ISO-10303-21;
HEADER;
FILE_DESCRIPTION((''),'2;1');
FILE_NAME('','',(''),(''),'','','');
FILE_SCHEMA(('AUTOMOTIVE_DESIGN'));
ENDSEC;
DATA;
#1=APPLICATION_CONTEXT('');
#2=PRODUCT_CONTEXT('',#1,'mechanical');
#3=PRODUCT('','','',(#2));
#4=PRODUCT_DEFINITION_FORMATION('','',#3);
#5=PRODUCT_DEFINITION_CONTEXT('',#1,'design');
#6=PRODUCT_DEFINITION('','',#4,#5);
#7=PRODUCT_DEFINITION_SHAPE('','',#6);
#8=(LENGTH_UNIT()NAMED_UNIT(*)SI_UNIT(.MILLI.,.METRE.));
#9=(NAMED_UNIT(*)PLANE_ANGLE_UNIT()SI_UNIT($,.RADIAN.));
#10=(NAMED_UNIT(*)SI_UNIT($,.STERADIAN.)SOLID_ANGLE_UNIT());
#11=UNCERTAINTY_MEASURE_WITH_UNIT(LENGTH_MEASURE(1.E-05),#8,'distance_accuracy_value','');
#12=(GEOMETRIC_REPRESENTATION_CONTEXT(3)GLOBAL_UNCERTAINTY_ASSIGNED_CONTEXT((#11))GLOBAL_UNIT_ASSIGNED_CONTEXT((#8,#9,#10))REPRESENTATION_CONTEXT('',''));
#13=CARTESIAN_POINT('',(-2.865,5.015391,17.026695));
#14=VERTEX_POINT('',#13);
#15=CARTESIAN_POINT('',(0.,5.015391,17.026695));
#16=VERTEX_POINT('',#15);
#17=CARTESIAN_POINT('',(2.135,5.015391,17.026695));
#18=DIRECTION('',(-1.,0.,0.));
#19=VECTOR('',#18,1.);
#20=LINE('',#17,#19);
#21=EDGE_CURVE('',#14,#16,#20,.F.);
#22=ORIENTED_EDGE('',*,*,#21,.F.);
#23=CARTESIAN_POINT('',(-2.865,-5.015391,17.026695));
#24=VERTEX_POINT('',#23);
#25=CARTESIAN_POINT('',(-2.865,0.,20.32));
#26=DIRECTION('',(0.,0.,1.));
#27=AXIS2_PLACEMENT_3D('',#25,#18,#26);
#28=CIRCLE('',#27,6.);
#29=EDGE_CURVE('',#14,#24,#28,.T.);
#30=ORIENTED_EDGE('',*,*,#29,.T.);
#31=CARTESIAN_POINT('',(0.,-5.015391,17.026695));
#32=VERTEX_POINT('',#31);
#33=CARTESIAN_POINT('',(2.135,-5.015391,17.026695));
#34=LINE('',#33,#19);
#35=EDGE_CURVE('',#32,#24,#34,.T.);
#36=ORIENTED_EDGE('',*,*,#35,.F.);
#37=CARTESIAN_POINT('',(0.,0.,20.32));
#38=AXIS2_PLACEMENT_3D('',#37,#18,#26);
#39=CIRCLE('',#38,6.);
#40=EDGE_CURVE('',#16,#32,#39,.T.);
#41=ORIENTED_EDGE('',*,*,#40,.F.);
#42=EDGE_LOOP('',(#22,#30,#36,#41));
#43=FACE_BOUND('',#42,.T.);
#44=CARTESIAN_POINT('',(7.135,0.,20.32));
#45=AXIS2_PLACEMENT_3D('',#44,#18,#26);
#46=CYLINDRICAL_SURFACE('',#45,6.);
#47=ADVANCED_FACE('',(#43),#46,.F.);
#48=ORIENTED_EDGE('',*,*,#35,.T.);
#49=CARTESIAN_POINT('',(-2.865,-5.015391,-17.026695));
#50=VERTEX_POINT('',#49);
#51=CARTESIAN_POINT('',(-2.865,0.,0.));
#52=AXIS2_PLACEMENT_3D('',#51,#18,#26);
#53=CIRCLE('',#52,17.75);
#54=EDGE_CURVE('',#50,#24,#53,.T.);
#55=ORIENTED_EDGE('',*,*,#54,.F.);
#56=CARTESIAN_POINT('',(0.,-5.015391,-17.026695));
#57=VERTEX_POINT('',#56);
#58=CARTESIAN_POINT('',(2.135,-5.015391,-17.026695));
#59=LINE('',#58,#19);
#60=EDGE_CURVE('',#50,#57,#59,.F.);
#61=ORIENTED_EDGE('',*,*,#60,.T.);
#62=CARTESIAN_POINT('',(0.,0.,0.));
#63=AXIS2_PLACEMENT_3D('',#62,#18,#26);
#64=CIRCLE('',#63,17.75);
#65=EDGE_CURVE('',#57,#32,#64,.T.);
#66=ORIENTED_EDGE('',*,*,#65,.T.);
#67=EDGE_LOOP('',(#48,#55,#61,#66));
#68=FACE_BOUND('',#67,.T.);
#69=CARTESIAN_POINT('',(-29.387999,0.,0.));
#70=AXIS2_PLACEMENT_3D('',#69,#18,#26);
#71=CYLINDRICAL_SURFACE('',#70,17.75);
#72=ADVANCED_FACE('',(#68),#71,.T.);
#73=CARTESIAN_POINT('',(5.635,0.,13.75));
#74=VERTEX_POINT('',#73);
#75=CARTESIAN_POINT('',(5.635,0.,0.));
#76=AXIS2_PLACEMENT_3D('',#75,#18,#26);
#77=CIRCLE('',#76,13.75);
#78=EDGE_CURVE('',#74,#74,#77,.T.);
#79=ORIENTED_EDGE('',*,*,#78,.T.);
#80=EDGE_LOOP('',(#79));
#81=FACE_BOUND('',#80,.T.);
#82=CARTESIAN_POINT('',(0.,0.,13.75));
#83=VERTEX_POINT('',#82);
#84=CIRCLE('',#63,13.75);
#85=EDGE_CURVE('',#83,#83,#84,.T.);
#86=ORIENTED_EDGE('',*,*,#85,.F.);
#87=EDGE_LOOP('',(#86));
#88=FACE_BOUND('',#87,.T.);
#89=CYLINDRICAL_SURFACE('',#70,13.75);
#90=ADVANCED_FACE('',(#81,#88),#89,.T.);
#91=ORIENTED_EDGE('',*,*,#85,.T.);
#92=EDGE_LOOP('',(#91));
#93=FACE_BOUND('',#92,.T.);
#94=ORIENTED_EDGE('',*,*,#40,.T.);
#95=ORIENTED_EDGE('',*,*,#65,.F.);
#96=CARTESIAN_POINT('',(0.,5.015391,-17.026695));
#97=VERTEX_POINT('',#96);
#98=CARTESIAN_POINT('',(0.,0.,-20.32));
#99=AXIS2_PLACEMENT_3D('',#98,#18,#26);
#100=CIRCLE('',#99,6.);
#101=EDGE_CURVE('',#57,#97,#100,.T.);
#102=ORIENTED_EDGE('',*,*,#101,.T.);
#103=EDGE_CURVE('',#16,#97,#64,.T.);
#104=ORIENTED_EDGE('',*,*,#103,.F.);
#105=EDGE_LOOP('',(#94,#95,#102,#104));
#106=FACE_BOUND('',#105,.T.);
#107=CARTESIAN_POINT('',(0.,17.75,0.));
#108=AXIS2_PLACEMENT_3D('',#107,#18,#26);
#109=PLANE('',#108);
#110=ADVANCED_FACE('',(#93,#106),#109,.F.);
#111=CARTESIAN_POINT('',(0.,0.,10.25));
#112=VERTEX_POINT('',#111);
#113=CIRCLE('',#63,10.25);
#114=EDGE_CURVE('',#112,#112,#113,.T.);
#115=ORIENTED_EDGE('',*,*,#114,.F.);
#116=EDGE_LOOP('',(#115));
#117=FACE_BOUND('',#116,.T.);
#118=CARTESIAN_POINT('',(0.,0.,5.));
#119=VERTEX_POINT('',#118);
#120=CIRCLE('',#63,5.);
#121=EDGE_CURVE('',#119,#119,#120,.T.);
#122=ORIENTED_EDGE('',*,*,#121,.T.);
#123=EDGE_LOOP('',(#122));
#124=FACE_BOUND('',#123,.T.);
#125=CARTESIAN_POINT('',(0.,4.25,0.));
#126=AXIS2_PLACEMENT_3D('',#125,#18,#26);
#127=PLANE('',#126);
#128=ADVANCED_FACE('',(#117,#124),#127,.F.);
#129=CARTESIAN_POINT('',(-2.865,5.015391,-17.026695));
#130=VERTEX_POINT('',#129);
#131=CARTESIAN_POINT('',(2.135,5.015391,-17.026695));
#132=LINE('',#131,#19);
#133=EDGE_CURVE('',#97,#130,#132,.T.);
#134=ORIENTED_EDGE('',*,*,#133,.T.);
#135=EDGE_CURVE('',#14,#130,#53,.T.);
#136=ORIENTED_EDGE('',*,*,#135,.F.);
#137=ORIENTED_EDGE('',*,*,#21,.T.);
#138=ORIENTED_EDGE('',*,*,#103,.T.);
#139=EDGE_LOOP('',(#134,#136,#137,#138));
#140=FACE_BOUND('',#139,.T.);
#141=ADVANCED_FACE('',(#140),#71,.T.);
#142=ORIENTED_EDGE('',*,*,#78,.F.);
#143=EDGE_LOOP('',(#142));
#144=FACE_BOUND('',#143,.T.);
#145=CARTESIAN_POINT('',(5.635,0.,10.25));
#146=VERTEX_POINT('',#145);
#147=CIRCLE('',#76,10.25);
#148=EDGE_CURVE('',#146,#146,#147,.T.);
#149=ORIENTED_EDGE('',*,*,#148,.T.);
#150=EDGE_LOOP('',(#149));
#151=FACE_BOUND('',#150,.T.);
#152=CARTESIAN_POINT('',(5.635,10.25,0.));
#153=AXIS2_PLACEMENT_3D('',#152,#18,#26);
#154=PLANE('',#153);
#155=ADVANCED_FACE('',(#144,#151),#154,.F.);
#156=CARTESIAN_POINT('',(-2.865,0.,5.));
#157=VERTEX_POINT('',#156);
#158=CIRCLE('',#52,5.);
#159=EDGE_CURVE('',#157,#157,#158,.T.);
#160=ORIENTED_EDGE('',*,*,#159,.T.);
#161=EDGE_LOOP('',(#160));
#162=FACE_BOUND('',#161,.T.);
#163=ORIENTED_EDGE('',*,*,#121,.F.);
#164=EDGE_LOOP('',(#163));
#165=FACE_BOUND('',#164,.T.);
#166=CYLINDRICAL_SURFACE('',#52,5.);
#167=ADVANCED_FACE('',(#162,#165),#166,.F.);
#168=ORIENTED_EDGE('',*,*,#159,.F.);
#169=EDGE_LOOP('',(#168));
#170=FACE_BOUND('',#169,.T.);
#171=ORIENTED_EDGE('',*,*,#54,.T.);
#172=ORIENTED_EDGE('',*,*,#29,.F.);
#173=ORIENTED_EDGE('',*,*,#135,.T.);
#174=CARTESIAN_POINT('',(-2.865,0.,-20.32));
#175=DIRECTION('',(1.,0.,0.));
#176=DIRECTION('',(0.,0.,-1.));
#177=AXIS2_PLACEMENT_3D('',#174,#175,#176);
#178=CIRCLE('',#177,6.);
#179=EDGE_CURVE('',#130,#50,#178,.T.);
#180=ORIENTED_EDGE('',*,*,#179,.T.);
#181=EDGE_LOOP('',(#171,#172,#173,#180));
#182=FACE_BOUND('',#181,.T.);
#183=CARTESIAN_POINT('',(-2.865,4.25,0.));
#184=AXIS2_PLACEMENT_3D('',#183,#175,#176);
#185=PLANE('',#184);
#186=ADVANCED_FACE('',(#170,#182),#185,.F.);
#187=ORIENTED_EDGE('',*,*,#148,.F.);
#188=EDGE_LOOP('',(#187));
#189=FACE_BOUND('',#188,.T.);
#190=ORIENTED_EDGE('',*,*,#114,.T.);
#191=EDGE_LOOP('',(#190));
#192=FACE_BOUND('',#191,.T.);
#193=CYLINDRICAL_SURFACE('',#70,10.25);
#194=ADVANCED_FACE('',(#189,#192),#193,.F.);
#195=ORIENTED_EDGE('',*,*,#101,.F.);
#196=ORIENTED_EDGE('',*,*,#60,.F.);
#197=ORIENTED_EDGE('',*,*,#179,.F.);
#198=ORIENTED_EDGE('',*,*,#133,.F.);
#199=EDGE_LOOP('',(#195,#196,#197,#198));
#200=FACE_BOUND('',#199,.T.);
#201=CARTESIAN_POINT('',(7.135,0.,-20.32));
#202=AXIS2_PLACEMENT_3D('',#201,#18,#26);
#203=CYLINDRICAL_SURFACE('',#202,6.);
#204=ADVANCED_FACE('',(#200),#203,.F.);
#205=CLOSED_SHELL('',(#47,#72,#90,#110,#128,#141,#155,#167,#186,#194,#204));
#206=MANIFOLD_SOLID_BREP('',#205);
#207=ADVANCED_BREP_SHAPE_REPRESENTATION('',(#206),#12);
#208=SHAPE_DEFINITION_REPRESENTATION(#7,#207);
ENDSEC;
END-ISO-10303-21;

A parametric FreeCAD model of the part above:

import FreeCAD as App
import Part
import Sketcher

doc = App.newDocument("Part")
body = doc.addObject("PartDesign::Body", "Body")

# Sketch on XY plane
sketch1 = body.newObject("Sketcher::SketchObject", "Sketch")
sketch1.AttachmentSupport = (doc.getObject("XY_Plane"), [""])
sketch1.MapMode = "FlatFace"
sketch1.addGeometry(Part.LineSegment(App.Vector(-2.9, 17.8, 0), App.Vector(-2.9, 4.2, 0)), False)
sketch1.addGeometry(Part.LineSegment(App.Vector(-2.9, 4.2, 0), App.Vector(0, 4.2, 0)), False)
sketch1.addGeometry(Part.LineSegment(App.Vector(0, 4.2, 0), App.Vector(0, 10.2, 0)), False)
sketch1.addGeometry(Part.LineSegment(App.Vector(0, 10.2, 0), App.Vector(5.6, 10.2, 0)), False)
sketch1.addGeometry(Part.LineSegment(App.Vector(5.6, 10.2, 0), App.Vector(5.6, 13.8, 0)), False)
sketch1.addGeometry(Part.LineSegment(App.Vector(5.6, 13.8, 0), App.Vector(0, 13.8, 0)), False)
sketch1.addGeometry(Part.LineSegment(App.Vector(0, 13.8, 0), App.Vector(0, 17.8, 0)), False)
sketch1.addGeometry(Part.LineSegment(App.Vector(0, 17.8, 0), App.Vector(-2.9, 17.8, 0)), False)
sketch1.addConstraint(Sketcher.Constraint("Coincident", 0, 2, 1, 1))
sketch1.addConstraint(Sketcher.Constraint("Coincident", 1, 2, 2, 1))
sketch1.addConstraint(Sketcher.Constraint("Coincident", 2, 2, 3, 1))
sketch1.addConstraint(Sketcher.Constraint("Coincident", 3, 2, 4, 1))
sketch1.addConstraint(Sketcher.Constraint("Coincident", 4, 2, 5, 1))
sketch1.addConstraint(Sketcher.Constraint("Coincident", 5, 2, 6, 1))
sketch1.addConstraint(Sketcher.Constraint("Coincident", 6, 2, 7, 1))
sketch1.addConstraint(Sketcher.Constraint("Coincident", 7, 2, 0, 1))
sketch1.addConstraint(Sketcher.Constraint("Vertical", 0))
sketch1.addConstraint(Sketcher.Constraint("Horizontal", 1))
sketch1.addConstraint(Sketcher.Constraint("Vertical", 2))
sketch1.addConstraint(Sketcher.Constraint("Horizontal", 3))
sketch1.addConstraint(Sketcher.Constraint("Vertical", 4))
sketch1.addConstraint(Sketcher.Constraint("Horizontal", 5))
sketch1.addConstraint(Sketcher.Constraint("Vertical", 6))
sketch1.addConstraint(Sketcher.Constraint("Horizontal", 7))
sketch1.addConstraint(Sketcher.Constraint("PointOnObject", 1, 2, -2))
sketch1.addConstraint(Sketcher.Constraint("PointOnObject", 5, 2, -2))
sketch1.addConstraint(Sketcher.Constraint("DistanceY", 2, 1, 2, 2, 6.0))
sketch1.addConstraint(Sketcher.Constraint("DistanceY", 6, 1, 6, 2, 4.0))
sketch1.addConstraint(Sketcher.Constraint("DistanceY", 0, 2, 0, 1, 13.5))
sketch1.addConstraint(Sketcher.Constraint("DistanceX", 0, 2, 3, 2, 8.5))
sketch1.addConstraint(Sketcher.Constraint("DistanceX", 1, 1, 1, 2, 2.865))
sketch1.addConstraint(Sketcher.Constraint("DistanceY", -1, 1, 0, 2, 4.25))
revolution = body.newObject("PartDesign::Revolution", "Revolution")
revolution.Profile = sketch1
revolution.ReferenceAxis = (sketch1, ["H_Axis"])
revolution.Angle = 360

# Sketch on YZ plane
sketch2 = body.newObject("Sketcher::SketchObject", "Sketch001")
sketch2.AttachmentSupport = (doc.getObject("YZ_Plane"), [""])
sketch2.MapMode = "FlatFace"
sketch2.AttachmentOffset = App.Placement(App.Vector(0, 0, -2.865), App.Rotation())
sketch2.addGeometry(Part.Circle(App.Vector(0, 0, 0), App.Vector(0, 0, 1), 5), False)
sketch2.addConstraint(Sketcher.Constraint("Coincident", 0, 3, -1, 1))
sketch2.addConstraint(Sketcher.Constraint("Diameter", 0, 10.0))
doc.recompute()
hole = body.newObject("PartDesign::Hole", "Hole")
hole.Profile = sketch2
hole.ThreadType = "None"
hole.Diameter = 10
hole.DepthType = "Dimension"
hole.Depth = 8.5
hole.DrillPoint = "Flat"
hole.Reversed = True

# Sketch on YZ plane
sketch3 = body.newObject("Sketcher::SketchObject", "Sketch002")
sketch3.AttachmentSupport = (doc.getObject("YZ_Plane"), [""])
sketch3.MapMode = "FlatFace"
sketch3.AttachmentOffset = App.Placement(App.Vector(0, 0, -2.865), App.Rotation())
sketch3.addGeometry(Part.Circle(App.Vector(0, -20, 0), App.Vector(0, 0, 1), 6), False)
sketch3.addGeometry(Part.Circle(App.Vector(0, 20, 0), App.Vector(0, 0, 1), 6), False)
sketch3.addConstraint(Sketcher.Constraint("Equal", 0, 1))
sketch3.addConstraint(Sketcher.Constraint("Symmetric", 0, 3, 1, 3, -1, 1))
sketch3.addConstraint(Sketcher.Constraint("PointOnObject", 0, 3, -2))
sketch3.addConstraint(Sketcher.Constraint("Diameter", 0, 12.0))
sketch3.addConstraint(Sketcher.Constraint("DistanceY", 0, 3, -1, 1, 20.32))
pocket1 = body.newObject("PartDesign::Pocket", "Pocket")
pocket1.Profile = sketch3
pocket1.Length = 10
pocket1.Reversed = True

doc.recompute()
